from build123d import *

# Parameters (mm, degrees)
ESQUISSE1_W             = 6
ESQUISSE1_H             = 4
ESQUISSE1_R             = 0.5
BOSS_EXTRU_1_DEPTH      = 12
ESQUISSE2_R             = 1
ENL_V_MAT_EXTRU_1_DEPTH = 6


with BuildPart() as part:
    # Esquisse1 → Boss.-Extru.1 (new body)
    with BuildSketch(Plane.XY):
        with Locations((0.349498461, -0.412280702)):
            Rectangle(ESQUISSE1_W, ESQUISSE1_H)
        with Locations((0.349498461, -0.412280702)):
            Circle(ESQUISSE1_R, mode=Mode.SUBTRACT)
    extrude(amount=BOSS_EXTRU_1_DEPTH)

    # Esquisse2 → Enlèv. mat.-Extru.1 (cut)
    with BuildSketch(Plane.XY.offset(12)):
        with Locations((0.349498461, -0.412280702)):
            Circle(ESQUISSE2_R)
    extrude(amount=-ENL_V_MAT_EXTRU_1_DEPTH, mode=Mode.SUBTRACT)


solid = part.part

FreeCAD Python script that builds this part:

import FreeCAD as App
import Part
import Sketcher

V = App.Vector

doc = App.newDocument("Part")
params = doc.addObject("Spreadsheet::Sheet", "Params")
for row, (alias, value) in enumerate([
    ("sketch1_diameter", "1 mm"),
    ("sketch1_width", "6 mm"),
    ("sketch1_height", "4 mm"),
    ("pad1_length", "12 mm"),
    ("sketch2_diameter", "2 mm"),
    ("pocket1_length", "6 mm"),
], start=1):
    params.set(f"A{row}", alias)
    params.set(f"B{row}", "=" + value)
    params.setAlias(f"B{row}", alias)

body = doc.addObject("PartDesign::Body", "Body")

sketch1 = body.newObject("Sketcher::SketchObject", "Sketch")
sketch1.AttachmentSupport = (doc.getObject("XY_Plane"), [""])
sketch1.MapMode = "FlatFace"
sketch1.addGeometry(Part.LineSegment(V(-2.7, 1.6, 0), V(-2.7, -2.4, 0)), False)
sketch1.addGeometry(Part.LineSegment(V(-2.7, -2.4, 0), V(3.3, -2.4, 0)), False)
sketch1.addGeometry(Part.LineSegment(V(3.3, -2.4, 0), V(3.3, 1.6, 0)), False)
sketch1.addGeometry(Part.LineSegment(V(3.3, 1.6, 0), V(-2.7, 1.6, 0)), False)
sketch1.addGeometry(Part.Circle(V(0.3, -0.4, 0), V(0, 0, 1), 0.5), False)
sketch1.addConstraint(Sketcher.Constraint("Coincident", 0, 2, 1, 1))
sketch1.addConstraint(Sketcher.Constraint("Coincident", 1, 2, 2, 1))
sketch1.addConstraint(Sketcher.Constraint("Coincident", 2, 2, 3, 1))
sketch1.addConstraint(Sketcher.Constraint("Coincident", 3, 2, 0, 1))
sketch1.addConstraint(Sketcher.Constraint("Vertical", 0))
sketch1.addConstraint(Sketcher.Constraint("Horizontal", 1))
sketch1.addConstraint(Sketcher.Constraint("Vertical", 2))
sketch1.addConstraint(Sketcher.Constraint("Horizontal", 3))
sketch1.addConstraint(Sketcher.Constraint("Diameter", 4, 1.0))
sketch1.addConstraint(Sketcher.Constraint("DistanceX", 1, 1, 1, 2, 6.0))
sketch1.addConstraint(Sketcher.Constraint("DistanceY", 0, 2, 0, 1, 4.0))
sketch1.addConstraint(Sketcher.Constraint("DistanceX", 0, 2, 4, 3, 3.0))
sketch1.addConstraint(Sketcher.Constraint("DistanceY", 0, 2, 4, 3, 2.0))
sketch1.addConstraint(Sketcher.Constraint("DistanceX", -1, 1, 4, 3, 0.349498))
sketch1.addConstraint(Sketcher.Constraint("DistanceY", 4, 3, -1, 1, 0.412281))
sketch1.setExpression("Constraints[8]", "Params.sketch1_diameter")
sketch1.setExpression("Constraints[9]", "Params.sketch1_width")
sketch1.setExpression("Constraints[10]", "Params.sketch1_height")
pad1 = body.newObject("PartDesign::Pad", "Pad")
pad1.Profile = sketch1
pad1.setExpression("Length", "Params.pad1_length")

sketch2 = body.newObject("Sketcher::SketchObject", "Sketch001")
sketch2.AttachmentSupport = (doc.getObject("XY_Plane"), [""])
sketch2.MapMode = "FlatFace"
sketch2.AttachmentOffset = App.Placement(V(0, 0, 12), App.Rotation())
sketch2.addGeometry(Part.Circle(V(0.3, -0.4, 0), V(0, 0, 1), 1), False)
sketch2.addConstraint(Sketcher.Constraint("Diameter", 0, 2.0))
sketch2.addConstraint(Sketcher.Constraint("DistanceX", -1, 1, 0, 3, 0.349498))
sketch2.addConstraint(Sketcher.Constraint("DistanceY", 0, 3, -1, 1, 0.412281))
sketch2.setExpression("Constraints[0]", "Params.sketch2_diameter")
pocket1 = body.newObject("PartDesign::Pocket", "Pocket")
pocket1.Profile = sketch2
pocket1.setExpression("Length", "Params.pocket1_length")

doc.recompute()
